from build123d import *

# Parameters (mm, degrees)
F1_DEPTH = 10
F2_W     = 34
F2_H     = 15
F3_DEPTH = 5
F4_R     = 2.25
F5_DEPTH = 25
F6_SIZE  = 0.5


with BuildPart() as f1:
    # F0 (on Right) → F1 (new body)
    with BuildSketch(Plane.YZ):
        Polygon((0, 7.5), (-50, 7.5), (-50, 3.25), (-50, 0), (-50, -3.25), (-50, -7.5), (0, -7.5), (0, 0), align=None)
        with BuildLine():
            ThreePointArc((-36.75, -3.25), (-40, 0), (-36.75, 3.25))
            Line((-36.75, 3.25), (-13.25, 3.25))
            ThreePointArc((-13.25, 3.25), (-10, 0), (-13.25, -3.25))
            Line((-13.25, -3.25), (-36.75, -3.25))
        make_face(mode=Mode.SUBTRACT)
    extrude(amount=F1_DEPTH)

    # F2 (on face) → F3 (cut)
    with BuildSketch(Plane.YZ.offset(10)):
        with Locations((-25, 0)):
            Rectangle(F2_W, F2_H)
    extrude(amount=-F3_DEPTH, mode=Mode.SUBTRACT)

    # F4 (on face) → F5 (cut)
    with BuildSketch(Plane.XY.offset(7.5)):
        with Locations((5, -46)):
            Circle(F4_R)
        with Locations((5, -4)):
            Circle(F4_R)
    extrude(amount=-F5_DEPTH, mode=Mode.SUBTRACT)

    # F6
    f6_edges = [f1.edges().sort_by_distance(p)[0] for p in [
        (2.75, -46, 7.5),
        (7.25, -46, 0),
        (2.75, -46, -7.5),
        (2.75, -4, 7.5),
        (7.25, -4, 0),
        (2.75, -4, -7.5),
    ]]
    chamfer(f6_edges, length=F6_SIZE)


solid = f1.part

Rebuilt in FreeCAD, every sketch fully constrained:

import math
import FreeCAD as App
import Part
import Sketcher

V = App.Vector


def edges_at(feature, points):
    """Names of the edges that pass closest to the given points."""
    edges = feature.Shape.Edges
    near = lambda p: min(range(len(edges)), key=lambda i: edges[i].distToShape(Part.Vertex(*p))[0])
    return sorted({f"Edge{near(p) + 1}" for p in points})


def add_polygon(sketch, points):
    """Adds a closed chain of lines whose ends are joined by coincident constraints."""
    first, n = sketch.GeometryCount, len(points)
    for a, b in zip(points, points[1:] + points[:1]):
        sketch.addGeometry(Part.LineSegment(App.Vector(*a, 0), App.Vector(*b, 0)), False)
    for i in range(n):
        sketch.addConstraint(Sketcher.Constraint("Coincident", first + i, 2, first + (i + 1) % n, 1))

doc = App.newDocument("Part")
body = doc.addObject("PartDesign::Body", "Body")

# Sketch on YZ plane
sketch1 = doc.addObject("Sketcher::SketchObject", "Sketch")
body.addObject(sketch1)
sketch1.AttachmentSupport = (doc.YZ_Plane, [""])
sketch1.MapMode = "FlatFace"
add_polygon(sketch1, [(0, 7.5), (-50, 7.5), (-50, -7.5), (0, -7.5)])  # lines 0-3
sketch1.addGeometry(Part.LineSegment(V(-13.2, -3.2, 0), V(-36.8, -3.2, 0)), False)  # 4
sketch1.addGeometry(Part.ArcOfCircle(Part.Circle(V(-36.8, 0, 0), V(0, 0, 1), 3.2), math.radians(90), math.radians(270)), False)  # 5
sketch1.addGeometry(Part.LineSegment(V(-36.8, 3.2, 0), V(-13.2, 3.2, 0)), False)  # 6
sketch1.addGeometry(Part.ArcOfCircle(Part.Circle(V(-13.2, 0, 0), V(0, 0, 1), 3.2), math.radians(-90), math.radians(90)), False)  # 7
sketch1.addConstraint([
    Sketcher.Constraint("Tangent", 4, 2, 5, 2),
    Sketcher.Constraint("Tangent", 5, 1, 6, 1),
    Sketcher.Constraint("Tangent", 6, 2, 7, 2),
    Sketcher.Constraint("Tangent", 7, 1, 4, 1),
    Sketcher.Constraint("Horizontal", 0),
    Sketcher.Constraint("Vertical", 1),
    Sketcher.Constraint("Horizontal", 2),
    Sketcher.Constraint("Vertical", 3),
    Sketcher.Constraint("Horizontal", 4),
    Sketcher.Constraint("Horizontal", 6),
    Sketcher.Constraint("Symmetric", 2, 2, 3, 2, -1, 1),
    Sketcher.Constraint("PointOnObject", 5, 3, -1),
    Sketcher.Constraint("DistanceX", 0, 2, 0, 1, 50.0),
    Sketcher.Constraint("DistanceY", 1, 2, 1, 1, 15.0),
    Sketcher.Constraint("Radius", 5, 3.25),
    Sketcher.Constraint("DistanceX", 4, 2, 4, 1, 23.5),
    Sketcher.Constraint("DistanceX", 5, 3, -1, 1, 36.75),
])
pad1 = doc.addObject("PartDesign::Pad", "Pad")
body.addObject(pad1)
pad1.Profile = sketch1
pad1.Length = 10

# Sketch on YZ plane
sketch2 = doc.addObject("Sketcher::SketchObject", "Sketch001")
body.addObject(sketch2)
sketch2.AttachmentSupport = (doc.YZ_Plane, [""])
sketch2.MapMode = "FlatFace"
sketch2.AttachmentOffset = App.Placement(V(0, 0, 10), App.Rotation())
add_polygon(sketch2, [(-42, 8), (-42, -8), (-8, -8), (-8, 8)])  # lines 0-3
sketch2.addConstraint([
    Sketcher.Constraint("Vertical", 0),
    Sketcher.Constraint("Horizontal", 1),
    Sketcher.Constraint("Vertical", 2),
    Sketcher.Constraint("Horizontal", 3),
    Sketcher.Constraint("DistanceX", 1, 1, 1, 2, 34.0),
    Sketcher.Constraint("DistanceY", 0, 2, 0, 1, 15.0),
    Sketcher.Constraint("DistanceX", 0, 2, -1, 1, 42.0),
    Sketcher.Constraint("DistanceY", 0, 2, -1, 1, 7.5),
])
pocket1 = doc.addObject("PartDesign::Pocket", "Pocket")
body.addObject(pocket1)
pocket1.Profile = sketch2
pocket1.Length = 5

# Sketch on XY plane
sketch3 = doc.addObject("Sketcher::SketchObject", "Sketch002")
body.addObject(sketch3)
sketch3.AttachmentSupport = (doc.XY_Plane, [""])
sketch3.MapMode = "FlatFace"
sketch3.AttachmentOffset = App.Placement(V(0, 0, 7.5), App.Rotation())
sketch3.addGeometry([
    Part.Circle(V(5, -46, 0), V(0, 0, 1), 2.2),
    Part.Circle(V(5, -4, 0), V(0, 0, 1), 2.2),
], False)
sketch3.addConstraint([
    Sketcher.Constraint("Equal", 0, 1),
    Sketcher.Constraint("Vertical", 0, 3, 1, 3),
    Sketcher.Constraint("Diameter", 0, 4.5),
    Sketcher.Constraint("DistanceX", -1, 1, 0, 3, 5.0),
    Sketcher.Constraint("DistanceY", 0, 3, -1, 1, 46.0),
    Sketcher.Constraint("DistanceY", 1, 3, -1, 1, 4.0),
])
pocket2 = doc.addObject("PartDesign::Pocket", "Pocket001")
body.addObject(pocket2)
pocket2.Profile = sketch3
pocket2.Length = 25
doc.recompute()

chamfer = doc.addObject("PartDesign::Chamfer", "Chamfer")
body.addObject(chamfer)
chamfer.Base = (pocket2, edges_at(pocket2, [
    (2.75, -46, 7.5),
    (7.25, -46, 0),
    (2.75, -46, -7.5),
    (2.75, -4, 7.5),
    (7.25, -4, 0),
    (2.75, -4, -7.5),
]))
chamfer.Size = 0.5

doc.recompute()
